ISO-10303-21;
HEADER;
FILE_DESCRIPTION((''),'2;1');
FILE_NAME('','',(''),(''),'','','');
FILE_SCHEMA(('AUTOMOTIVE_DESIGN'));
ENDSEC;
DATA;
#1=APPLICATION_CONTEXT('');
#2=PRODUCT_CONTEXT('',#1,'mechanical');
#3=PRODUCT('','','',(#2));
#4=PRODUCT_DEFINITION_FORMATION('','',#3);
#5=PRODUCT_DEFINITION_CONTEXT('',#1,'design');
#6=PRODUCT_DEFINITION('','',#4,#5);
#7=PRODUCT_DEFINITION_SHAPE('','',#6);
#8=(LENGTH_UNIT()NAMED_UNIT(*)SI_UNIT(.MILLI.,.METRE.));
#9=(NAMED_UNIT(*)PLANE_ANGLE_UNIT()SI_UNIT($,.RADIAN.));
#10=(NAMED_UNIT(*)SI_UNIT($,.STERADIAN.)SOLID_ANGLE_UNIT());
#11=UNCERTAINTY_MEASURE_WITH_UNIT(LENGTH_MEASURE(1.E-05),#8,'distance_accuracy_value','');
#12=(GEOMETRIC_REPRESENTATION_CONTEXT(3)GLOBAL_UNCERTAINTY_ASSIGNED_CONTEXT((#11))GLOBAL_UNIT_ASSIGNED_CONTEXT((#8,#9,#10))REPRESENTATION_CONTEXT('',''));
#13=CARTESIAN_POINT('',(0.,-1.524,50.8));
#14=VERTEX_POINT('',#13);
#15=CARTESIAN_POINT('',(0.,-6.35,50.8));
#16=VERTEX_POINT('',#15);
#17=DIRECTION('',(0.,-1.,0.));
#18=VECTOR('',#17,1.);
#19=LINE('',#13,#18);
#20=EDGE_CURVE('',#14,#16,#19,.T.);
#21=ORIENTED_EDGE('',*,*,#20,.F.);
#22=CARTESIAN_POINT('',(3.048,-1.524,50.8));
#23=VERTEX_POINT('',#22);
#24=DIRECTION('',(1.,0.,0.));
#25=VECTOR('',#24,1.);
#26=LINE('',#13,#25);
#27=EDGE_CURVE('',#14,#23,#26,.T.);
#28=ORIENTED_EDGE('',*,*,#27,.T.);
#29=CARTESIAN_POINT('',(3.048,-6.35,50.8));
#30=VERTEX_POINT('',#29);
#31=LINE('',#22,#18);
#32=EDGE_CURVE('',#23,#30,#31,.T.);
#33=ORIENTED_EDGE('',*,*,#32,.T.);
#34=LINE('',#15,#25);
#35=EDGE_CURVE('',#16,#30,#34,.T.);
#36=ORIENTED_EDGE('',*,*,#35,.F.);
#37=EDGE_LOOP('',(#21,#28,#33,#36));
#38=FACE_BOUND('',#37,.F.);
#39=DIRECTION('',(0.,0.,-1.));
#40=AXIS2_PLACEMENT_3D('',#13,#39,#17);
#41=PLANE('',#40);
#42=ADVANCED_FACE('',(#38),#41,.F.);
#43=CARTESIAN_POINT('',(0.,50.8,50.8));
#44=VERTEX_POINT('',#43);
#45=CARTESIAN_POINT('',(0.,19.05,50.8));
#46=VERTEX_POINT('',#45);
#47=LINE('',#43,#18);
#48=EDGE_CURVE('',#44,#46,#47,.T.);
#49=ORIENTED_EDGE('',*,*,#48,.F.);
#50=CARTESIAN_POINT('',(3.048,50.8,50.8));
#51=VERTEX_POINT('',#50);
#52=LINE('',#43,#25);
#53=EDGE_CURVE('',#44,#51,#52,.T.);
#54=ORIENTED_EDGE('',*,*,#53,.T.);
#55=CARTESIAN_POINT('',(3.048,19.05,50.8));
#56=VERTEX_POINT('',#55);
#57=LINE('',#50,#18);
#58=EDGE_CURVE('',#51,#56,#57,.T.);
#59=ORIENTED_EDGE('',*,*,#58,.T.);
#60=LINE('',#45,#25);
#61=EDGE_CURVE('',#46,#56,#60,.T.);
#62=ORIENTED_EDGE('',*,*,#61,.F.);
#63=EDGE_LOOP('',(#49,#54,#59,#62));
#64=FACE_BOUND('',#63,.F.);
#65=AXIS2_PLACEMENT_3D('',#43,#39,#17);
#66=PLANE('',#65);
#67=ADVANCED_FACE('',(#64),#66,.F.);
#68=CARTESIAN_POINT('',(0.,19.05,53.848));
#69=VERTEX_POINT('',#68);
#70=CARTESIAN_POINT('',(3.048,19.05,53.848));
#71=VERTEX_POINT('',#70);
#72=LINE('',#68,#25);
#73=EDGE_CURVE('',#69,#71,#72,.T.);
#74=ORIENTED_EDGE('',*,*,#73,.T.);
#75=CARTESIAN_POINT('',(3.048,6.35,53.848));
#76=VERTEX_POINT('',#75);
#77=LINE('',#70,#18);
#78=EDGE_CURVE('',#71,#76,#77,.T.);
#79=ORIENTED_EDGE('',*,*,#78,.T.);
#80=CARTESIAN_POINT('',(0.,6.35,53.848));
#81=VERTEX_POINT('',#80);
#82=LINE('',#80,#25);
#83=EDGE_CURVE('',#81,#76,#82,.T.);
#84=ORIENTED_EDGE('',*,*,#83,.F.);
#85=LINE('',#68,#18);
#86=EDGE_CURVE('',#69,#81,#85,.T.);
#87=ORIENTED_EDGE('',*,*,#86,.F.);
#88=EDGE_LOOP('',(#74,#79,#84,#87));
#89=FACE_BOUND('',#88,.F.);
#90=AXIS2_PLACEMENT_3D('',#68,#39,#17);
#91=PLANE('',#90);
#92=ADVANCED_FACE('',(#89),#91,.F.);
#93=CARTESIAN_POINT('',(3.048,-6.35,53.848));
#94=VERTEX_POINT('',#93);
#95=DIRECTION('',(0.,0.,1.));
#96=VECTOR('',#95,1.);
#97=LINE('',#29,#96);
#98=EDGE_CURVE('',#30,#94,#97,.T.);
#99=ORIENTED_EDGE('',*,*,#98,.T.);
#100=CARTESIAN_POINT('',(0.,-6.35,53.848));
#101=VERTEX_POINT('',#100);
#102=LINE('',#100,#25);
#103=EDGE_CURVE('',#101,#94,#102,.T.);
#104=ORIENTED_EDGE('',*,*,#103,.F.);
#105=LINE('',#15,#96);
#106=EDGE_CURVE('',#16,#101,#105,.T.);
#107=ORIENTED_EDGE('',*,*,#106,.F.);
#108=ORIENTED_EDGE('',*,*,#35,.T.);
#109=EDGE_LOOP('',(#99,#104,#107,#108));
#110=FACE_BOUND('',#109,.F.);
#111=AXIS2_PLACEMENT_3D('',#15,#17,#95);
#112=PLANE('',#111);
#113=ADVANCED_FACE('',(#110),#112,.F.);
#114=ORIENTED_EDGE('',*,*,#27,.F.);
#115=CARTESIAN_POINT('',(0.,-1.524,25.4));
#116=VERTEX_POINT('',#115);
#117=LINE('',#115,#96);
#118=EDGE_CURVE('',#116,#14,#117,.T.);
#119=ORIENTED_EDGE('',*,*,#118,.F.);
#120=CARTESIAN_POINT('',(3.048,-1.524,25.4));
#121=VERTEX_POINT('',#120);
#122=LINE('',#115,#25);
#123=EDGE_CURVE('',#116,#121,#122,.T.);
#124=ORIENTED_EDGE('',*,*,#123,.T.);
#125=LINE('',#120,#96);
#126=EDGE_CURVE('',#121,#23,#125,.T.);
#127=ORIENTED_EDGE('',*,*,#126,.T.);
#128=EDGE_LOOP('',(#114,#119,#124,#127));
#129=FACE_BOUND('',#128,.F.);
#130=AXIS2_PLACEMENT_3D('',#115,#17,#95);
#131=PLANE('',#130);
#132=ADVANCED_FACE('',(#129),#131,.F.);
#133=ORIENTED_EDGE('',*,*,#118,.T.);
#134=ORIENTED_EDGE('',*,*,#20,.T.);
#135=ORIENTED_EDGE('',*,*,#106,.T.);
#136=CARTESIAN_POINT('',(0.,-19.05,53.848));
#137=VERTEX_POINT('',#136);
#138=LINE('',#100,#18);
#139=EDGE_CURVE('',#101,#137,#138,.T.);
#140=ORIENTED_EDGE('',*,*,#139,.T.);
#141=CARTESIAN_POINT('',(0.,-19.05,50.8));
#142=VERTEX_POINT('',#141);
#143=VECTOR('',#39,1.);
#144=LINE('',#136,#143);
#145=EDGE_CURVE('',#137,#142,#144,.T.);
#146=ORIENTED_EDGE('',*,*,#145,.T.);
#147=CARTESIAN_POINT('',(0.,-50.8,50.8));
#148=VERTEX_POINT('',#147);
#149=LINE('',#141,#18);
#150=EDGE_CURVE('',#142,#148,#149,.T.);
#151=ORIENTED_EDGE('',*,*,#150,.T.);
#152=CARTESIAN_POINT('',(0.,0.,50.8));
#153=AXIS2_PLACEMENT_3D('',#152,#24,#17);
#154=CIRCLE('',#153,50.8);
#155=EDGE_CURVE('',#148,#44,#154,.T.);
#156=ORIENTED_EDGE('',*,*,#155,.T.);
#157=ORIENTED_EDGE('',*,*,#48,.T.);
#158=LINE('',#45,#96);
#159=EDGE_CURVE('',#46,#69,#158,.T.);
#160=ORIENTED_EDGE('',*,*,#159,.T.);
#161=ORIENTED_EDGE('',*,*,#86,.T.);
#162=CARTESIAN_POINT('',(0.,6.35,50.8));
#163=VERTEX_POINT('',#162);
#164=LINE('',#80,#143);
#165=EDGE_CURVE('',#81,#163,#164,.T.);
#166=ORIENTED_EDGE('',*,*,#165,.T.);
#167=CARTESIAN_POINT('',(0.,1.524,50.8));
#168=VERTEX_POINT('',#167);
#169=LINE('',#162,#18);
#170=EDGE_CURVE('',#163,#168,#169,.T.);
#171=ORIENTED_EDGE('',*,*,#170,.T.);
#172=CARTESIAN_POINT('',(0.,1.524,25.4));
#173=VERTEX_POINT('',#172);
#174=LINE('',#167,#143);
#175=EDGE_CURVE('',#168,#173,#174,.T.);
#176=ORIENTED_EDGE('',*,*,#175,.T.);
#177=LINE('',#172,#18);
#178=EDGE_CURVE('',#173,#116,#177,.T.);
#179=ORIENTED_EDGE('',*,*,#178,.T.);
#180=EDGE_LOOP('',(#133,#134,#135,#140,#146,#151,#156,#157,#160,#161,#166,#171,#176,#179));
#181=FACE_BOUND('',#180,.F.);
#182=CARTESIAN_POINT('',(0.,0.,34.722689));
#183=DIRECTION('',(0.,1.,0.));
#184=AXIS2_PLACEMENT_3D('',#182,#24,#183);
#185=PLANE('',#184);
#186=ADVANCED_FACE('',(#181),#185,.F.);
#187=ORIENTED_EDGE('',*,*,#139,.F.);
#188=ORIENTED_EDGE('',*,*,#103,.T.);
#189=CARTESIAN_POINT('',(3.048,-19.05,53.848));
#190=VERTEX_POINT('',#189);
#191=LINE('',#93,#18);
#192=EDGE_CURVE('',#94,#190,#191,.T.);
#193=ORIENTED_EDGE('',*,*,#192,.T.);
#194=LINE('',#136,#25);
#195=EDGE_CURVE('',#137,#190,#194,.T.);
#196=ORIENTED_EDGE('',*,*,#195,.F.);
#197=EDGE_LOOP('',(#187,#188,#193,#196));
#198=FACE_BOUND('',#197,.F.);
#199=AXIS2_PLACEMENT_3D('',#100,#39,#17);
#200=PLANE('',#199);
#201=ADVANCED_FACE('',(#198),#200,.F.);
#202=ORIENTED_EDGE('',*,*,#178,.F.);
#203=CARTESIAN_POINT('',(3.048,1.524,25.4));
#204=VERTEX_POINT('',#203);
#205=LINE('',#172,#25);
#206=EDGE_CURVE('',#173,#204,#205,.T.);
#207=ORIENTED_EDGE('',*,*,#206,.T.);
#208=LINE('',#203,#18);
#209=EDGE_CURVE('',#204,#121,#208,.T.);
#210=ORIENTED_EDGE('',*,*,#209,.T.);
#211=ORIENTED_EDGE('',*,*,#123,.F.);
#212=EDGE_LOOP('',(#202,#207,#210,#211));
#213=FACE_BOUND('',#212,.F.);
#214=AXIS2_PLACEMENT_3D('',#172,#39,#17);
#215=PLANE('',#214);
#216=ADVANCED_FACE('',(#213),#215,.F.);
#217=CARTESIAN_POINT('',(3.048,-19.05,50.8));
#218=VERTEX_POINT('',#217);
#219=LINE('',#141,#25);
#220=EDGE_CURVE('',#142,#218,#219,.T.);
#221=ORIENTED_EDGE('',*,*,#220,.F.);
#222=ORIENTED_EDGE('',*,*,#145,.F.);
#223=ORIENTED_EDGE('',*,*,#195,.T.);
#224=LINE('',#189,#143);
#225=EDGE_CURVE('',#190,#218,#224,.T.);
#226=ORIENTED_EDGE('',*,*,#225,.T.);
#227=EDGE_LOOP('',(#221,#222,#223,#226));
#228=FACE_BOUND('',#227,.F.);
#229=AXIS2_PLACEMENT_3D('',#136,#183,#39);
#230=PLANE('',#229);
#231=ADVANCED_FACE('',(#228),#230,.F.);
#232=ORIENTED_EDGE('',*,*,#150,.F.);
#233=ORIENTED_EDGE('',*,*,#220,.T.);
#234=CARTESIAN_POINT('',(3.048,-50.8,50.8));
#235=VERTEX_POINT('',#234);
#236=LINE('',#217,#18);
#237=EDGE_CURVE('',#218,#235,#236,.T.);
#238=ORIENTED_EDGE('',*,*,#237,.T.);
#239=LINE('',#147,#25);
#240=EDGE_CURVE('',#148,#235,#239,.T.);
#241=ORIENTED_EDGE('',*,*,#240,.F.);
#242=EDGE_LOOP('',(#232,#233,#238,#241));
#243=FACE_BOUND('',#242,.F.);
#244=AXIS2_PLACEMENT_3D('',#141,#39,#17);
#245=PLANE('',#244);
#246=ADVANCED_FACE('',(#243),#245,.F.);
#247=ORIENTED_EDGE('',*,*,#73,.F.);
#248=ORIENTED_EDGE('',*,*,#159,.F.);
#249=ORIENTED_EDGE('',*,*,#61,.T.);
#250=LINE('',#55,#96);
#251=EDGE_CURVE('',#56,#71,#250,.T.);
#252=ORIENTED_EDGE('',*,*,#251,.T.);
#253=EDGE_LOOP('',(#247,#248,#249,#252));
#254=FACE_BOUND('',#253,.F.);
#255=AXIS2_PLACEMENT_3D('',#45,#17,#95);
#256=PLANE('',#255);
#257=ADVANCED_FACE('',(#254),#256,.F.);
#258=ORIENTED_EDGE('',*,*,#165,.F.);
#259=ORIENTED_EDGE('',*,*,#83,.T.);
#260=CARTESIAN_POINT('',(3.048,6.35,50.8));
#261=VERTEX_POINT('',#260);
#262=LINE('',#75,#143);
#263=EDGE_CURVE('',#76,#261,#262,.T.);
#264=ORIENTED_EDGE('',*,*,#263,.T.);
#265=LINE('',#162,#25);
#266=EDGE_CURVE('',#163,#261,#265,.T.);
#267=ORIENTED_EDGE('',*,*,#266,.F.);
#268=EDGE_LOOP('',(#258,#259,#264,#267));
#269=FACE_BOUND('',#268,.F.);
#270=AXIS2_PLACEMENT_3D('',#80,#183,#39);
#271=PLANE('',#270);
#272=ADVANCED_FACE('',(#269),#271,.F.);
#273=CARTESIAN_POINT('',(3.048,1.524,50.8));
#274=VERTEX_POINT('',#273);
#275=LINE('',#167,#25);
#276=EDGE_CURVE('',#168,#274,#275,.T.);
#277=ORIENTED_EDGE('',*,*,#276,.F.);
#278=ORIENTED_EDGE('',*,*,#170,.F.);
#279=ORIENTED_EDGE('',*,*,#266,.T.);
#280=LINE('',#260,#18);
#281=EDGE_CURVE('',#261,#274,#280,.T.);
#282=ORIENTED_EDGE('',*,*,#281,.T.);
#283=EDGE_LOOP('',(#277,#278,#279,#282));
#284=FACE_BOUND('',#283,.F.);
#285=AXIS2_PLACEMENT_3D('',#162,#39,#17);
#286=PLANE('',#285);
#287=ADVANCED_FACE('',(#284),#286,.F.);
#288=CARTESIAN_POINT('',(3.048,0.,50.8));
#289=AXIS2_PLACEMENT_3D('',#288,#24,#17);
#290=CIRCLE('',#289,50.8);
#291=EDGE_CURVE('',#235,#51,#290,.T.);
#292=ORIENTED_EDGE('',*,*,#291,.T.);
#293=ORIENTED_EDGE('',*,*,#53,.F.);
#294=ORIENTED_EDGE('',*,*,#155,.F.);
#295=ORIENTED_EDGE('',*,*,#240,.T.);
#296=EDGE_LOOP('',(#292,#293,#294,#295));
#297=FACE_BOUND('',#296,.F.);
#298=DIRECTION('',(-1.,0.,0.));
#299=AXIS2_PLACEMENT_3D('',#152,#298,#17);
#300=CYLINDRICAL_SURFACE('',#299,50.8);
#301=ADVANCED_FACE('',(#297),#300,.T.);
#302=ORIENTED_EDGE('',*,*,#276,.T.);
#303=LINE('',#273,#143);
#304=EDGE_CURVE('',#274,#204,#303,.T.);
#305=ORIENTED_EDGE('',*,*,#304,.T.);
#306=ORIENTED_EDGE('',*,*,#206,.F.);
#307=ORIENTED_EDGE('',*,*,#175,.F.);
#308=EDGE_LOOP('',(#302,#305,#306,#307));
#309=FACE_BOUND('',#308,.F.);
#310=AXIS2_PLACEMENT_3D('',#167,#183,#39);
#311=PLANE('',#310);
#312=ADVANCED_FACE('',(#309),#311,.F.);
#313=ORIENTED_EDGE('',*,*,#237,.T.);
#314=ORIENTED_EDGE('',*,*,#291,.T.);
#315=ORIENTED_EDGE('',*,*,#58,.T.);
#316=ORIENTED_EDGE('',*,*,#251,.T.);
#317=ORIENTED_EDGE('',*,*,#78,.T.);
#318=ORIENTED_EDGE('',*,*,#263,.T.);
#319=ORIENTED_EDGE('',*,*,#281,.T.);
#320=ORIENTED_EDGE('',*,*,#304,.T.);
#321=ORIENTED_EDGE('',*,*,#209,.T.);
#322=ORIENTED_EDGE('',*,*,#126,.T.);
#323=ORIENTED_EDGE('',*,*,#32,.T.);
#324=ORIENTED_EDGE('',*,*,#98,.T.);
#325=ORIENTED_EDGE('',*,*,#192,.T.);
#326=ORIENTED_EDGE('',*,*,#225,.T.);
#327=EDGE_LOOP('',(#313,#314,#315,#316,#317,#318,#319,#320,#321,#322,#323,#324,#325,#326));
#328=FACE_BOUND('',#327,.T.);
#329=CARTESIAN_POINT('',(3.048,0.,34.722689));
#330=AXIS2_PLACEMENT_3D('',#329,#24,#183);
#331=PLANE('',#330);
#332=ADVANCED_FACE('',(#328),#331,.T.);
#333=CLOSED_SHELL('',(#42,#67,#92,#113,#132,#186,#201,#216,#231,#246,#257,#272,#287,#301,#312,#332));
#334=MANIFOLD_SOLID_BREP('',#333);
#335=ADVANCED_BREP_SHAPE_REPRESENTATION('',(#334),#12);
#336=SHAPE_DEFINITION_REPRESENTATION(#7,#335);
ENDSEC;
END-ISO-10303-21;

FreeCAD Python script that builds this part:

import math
import FreeCAD as App
import Part
import Sketcher
from FreeCAD import Vector
Q = App.Units.Quantity

doc = App.newDocument("Part")
body = doc.addObject("PartDesign::Body", "Body")

# Sketch on YZ plane
sketch1 = doc.addObject("Sketcher::SketchObject", "Sketch")
body.addObject(sketch1)
sketch1.AttachmentSupport = (doc.YZ_Plane, [""])
sketch1.MapMode = "FlatFace"
sketch1.addGeometry([
    Part.LineSegment(Vector(-19.05, 50.8, 0), Vector(-50.8, 50.8, 0)),  # 0
    Part.ArcOfCircle(Part.Circle(Vector(0, 50.8, 0), Vector(0, 0, 1), 50.8), math.radians(180), math.radians(360)),  # 1
    Part.LineSegment(Vector(50.8, 50.8, 0), Vector(19.05, 50.8, 0)),  # 2
    Part.LineSegment(Vector(19.05, 50.8, 0), Vector(19.05, 53.848, 0)),  # 3
    Part.LineSegment(Vector(19.05, 53.848, 0), Vector(6.35, 53.848, 0)),  # 4
    Part.LineSegment(Vector(6.35, 53.848, 0), Vector(6.35, 50.8, 0)),  # 5
    Part.LineSegment(Vector(6.35, 50.8, 0), Vector(1.524, 50.8, 0)),  # 6
    Part.LineSegment(Vector(1.524, 50.8, 0), Vector(1.524, 25.4, 0)),  # 7
    Part.LineSegment(Vector(1.524, 25.4, 0), Vector(-1.524, 25.4, 0)),  # 8
    Part.LineSegment(Vector(-1.524, 25.4, 0), Vector(-1.524, 50.8, 0)),  # 9
    Part.LineSegment(Vector(-1.524, 50.8, 0), Vector(-6.35, 50.8, 0)),  # 10
    Part.LineSegment(Vector(-6.35, 50.8, 0), Vector(-6.35, 53.848, 0)),  # 11
    Part.LineSegment(Vector(-6.35, 53.848, 0), Vector(-19.05, 53.848, 0)),  # 12
    Part.LineSegment(Vector(-19.05, 53.848, 0), Vector(-19.05, 50.8, 0)),  # 13
], False)
sketch1.addConstraint([
    Sketcher.Constraint("Coincident", 0, 2, 1, 1),
    Sketcher.Constraint("Coincident", 1, 2, 2, 1),
    Sketcher.Constraint("Coincident", 2, 2, 3, 1),
    Sketcher.Constraint("Coincident", 3, 2, 4, 1),
    Sketcher.Constraint("Coincident", 4, 2, 5, 1),
    Sketcher.Constraint("Coincident", 5, 2, 6, 1),
    Sketcher.Constraint("Coincident", 6, 2, 7, 1),
    Sketcher.Constraint("Coincident", 7, 2, 8, 1),
    Sketcher.Constraint("Coincident", 8, 2, 9, 1),
    Sketcher.Constraint("Coincident", 9, 2, 10, 1),
    Sketcher.Constraint("Coincident", 10, 2, 11, 1),
    Sketcher.Constraint("Coincident", 11, 2, 12, 1),
    Sketcher.Constraint("Coincident", 12, 2, 13, 1),
    Sketcher.Constraint("Coincident", 13, 2, 0, 1),
    Sketcher.Constraint("Horizontal", 0),
    Sketcher.Constraint("Horizontal", 2),
    Sketcher.Constraint("Vertical", 3),
    Sketcher.Constraint("Horizontal", 4),
    Sketcher.Constraint("Vertical", 5),
    Sketcher.Constraint("Horizontal", 6),
    Sketcher.Constraint("Vertical", 7),
    Sketcher.Constraint("Horizontal", 8),
    Sketcher.Constraint("Vertical", 9),
    Sketcher.Constraint("Horizontal", 10),
    Sketcher.Constraint("Vertical", 11),
    Sketcher.Constraint("Horizontal", 12),
    Sketcher.Constraint("Vertical", 13),
    Sketcher.Constraint("Symmetric", 0, 2, 1, 2, -2),
    Sketcher.Constraint("Symmetric", 6, 2, 9, 2, -2),
    Sketcher.Constraint("Symmetric", 4, 2, 11, 2, -2),
    Sketcher.Constraint("Horizontal", 1, 3, 0, 2),
    Sketcher.Constraint("Horizontal", 2, 2, 5, 2),
    Sketcher.Constraint("Equal", 0, 2),
    Sketcher.Constraint("Equal", 8, 3),
    Sketcher.Constraint("Radius", 1, Q("2 in")),
    Sketcher.Constraint("DistanceY", 7, 2, 7, 1, Q("1 in")),
    Sketcher.Constraint("DistanceX", 4, 2, 4, 1, Q("0.5 in")),
    Sketcher.Constraint("DistanceY", -1, 1, 1, 3, Q("2 in")),
    Sketcher.Constraint("DistanceX", 0, 2, 0, 1, Q("1.25 in")),
    Sketcher.Constraint("DistanceX", 6, 2, 6, 1, Q("0.19 in")),
])
pad1 = doc.addObject("PartDesign::Pad", "Pad")
body.addObject(pad1)
pad1.Profile = sketch1
pad1.Length = Q("0.12 in")

doc.recompute()
